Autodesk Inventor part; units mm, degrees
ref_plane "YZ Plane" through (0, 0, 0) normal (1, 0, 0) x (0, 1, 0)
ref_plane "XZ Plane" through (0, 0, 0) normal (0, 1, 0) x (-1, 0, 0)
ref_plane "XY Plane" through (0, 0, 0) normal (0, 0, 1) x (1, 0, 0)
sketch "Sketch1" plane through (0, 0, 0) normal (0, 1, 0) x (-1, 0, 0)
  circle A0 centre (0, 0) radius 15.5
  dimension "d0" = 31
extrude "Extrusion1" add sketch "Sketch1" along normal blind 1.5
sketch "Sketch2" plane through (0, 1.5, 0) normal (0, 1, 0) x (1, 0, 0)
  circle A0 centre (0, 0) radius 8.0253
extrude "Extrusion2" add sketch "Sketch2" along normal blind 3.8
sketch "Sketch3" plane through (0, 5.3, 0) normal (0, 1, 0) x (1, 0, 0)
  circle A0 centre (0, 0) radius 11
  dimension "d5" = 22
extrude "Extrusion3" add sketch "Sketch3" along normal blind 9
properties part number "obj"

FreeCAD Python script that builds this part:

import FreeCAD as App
import Part
import Sketcher

doc = App.newDocument("Part")
params = doc.addObject("Spreadsheet::Sheet", "Params")
for row, (alias, value) in enumerate([
    ("sketch1_diameter", "31 mm"),
    ("pad1_length", "1.5 mm"),
    ("pad2_length", "3.8 mm"),
    ("sketch3_diameter", "22 mm"),
    ("pad3_length", "9 mm"),
], start=1):
    params.set(f"A{row}", alias)
    params.set(f"B{row}", "=" + value)
    params.setAlias(f"B{row}", alias)

body = doc.addObject("PartDesign::Body", "Body")

sketch1 = body.newObject("Sketcher::SketchObject", "Sketch")
sketch1.AttachmentSupport = (doc.getObject("XZ_Plane"), [""])
sketch1.MapMode = "FlatFace"
sketch1.addGeometry(Part.Circle(App.Vector(0, 0, 0), App.Vector(0, 0, 1), 16), False)
sketch1.addConstraint([
    Sketcher.Constraint("Coincident", 0, 3, -1, 1),
    Sketcher.Constraint("Diameter", 0, 31.0),
])
sketch1.setExpression("Constraints[1]", "Params.sketch1_diameter")
pad1 = body.newObject("PartDesign::Pad", "Pad")
pad1.Profile = sketch1
pad1.setExpression("Length", "Params.pad1_length")
pad1.Reversed = True

sketch2 = body.newObject("Sketcher::SketchObject", "Sketch001")
sketch2.AttachmentSupport = (doc.getObject("XZ_Plane"), [""])
sketch2.MapMode = "FlatFace"
sketch2.AttachmentOffset = App.Placement(App.Vector(0, 0, -1.5), App.Rotation())
sketch2.addGeometry(Part.Circle(App.Vector(0, 0, 0), App.Vector(0, 0, 1), 8), False)
sketch2.addConstraint([
    Sketcher.Constraint("Coincident", 0, 3, -1, 1),
    Sketcher.Constraint("Diameter", 0, 16.0506),
])
pad2 = body.newObject("PartDesign::Pad", "Pad001")
pad2.Profile = sketch2
pad2.setExpression("Length", "Params.pad2_length")
pad2.Reversed = True

sketch3 = body.newObject("Sketcher::SketchObject", "Sketch002")
sketch3.AttachmentSupport = (doc.getObject("XZ_Plane"), [""])
sketch3.MapMode = "FlatFace"
sketch3.AttachmentOffset = App.Placement(App.Vector(0, 0, -5.3), App.Rotation())
sketch3.addGeometry(Part.Circle(App.Vector(0, 0, 0), App.Vector(0, 0, 1), 11), False)
sketch3.addConstraint([
    Sketcher.Constraint("Coincident", 0, 3, -1, 1),
    Sketcher.Constraint("Diameter", 0, 22.0),
])
sketch3.setExpression("Constraints[1]", "Params.sketch3_diameter")
pad3 = body.newObject("PartDesign::Pad", "Pad002")
pad3.Profile = sketch3
pad3.setExpression("Length", "Params.pad3_length")
pad3.Reversed = True

doc.recompute()
